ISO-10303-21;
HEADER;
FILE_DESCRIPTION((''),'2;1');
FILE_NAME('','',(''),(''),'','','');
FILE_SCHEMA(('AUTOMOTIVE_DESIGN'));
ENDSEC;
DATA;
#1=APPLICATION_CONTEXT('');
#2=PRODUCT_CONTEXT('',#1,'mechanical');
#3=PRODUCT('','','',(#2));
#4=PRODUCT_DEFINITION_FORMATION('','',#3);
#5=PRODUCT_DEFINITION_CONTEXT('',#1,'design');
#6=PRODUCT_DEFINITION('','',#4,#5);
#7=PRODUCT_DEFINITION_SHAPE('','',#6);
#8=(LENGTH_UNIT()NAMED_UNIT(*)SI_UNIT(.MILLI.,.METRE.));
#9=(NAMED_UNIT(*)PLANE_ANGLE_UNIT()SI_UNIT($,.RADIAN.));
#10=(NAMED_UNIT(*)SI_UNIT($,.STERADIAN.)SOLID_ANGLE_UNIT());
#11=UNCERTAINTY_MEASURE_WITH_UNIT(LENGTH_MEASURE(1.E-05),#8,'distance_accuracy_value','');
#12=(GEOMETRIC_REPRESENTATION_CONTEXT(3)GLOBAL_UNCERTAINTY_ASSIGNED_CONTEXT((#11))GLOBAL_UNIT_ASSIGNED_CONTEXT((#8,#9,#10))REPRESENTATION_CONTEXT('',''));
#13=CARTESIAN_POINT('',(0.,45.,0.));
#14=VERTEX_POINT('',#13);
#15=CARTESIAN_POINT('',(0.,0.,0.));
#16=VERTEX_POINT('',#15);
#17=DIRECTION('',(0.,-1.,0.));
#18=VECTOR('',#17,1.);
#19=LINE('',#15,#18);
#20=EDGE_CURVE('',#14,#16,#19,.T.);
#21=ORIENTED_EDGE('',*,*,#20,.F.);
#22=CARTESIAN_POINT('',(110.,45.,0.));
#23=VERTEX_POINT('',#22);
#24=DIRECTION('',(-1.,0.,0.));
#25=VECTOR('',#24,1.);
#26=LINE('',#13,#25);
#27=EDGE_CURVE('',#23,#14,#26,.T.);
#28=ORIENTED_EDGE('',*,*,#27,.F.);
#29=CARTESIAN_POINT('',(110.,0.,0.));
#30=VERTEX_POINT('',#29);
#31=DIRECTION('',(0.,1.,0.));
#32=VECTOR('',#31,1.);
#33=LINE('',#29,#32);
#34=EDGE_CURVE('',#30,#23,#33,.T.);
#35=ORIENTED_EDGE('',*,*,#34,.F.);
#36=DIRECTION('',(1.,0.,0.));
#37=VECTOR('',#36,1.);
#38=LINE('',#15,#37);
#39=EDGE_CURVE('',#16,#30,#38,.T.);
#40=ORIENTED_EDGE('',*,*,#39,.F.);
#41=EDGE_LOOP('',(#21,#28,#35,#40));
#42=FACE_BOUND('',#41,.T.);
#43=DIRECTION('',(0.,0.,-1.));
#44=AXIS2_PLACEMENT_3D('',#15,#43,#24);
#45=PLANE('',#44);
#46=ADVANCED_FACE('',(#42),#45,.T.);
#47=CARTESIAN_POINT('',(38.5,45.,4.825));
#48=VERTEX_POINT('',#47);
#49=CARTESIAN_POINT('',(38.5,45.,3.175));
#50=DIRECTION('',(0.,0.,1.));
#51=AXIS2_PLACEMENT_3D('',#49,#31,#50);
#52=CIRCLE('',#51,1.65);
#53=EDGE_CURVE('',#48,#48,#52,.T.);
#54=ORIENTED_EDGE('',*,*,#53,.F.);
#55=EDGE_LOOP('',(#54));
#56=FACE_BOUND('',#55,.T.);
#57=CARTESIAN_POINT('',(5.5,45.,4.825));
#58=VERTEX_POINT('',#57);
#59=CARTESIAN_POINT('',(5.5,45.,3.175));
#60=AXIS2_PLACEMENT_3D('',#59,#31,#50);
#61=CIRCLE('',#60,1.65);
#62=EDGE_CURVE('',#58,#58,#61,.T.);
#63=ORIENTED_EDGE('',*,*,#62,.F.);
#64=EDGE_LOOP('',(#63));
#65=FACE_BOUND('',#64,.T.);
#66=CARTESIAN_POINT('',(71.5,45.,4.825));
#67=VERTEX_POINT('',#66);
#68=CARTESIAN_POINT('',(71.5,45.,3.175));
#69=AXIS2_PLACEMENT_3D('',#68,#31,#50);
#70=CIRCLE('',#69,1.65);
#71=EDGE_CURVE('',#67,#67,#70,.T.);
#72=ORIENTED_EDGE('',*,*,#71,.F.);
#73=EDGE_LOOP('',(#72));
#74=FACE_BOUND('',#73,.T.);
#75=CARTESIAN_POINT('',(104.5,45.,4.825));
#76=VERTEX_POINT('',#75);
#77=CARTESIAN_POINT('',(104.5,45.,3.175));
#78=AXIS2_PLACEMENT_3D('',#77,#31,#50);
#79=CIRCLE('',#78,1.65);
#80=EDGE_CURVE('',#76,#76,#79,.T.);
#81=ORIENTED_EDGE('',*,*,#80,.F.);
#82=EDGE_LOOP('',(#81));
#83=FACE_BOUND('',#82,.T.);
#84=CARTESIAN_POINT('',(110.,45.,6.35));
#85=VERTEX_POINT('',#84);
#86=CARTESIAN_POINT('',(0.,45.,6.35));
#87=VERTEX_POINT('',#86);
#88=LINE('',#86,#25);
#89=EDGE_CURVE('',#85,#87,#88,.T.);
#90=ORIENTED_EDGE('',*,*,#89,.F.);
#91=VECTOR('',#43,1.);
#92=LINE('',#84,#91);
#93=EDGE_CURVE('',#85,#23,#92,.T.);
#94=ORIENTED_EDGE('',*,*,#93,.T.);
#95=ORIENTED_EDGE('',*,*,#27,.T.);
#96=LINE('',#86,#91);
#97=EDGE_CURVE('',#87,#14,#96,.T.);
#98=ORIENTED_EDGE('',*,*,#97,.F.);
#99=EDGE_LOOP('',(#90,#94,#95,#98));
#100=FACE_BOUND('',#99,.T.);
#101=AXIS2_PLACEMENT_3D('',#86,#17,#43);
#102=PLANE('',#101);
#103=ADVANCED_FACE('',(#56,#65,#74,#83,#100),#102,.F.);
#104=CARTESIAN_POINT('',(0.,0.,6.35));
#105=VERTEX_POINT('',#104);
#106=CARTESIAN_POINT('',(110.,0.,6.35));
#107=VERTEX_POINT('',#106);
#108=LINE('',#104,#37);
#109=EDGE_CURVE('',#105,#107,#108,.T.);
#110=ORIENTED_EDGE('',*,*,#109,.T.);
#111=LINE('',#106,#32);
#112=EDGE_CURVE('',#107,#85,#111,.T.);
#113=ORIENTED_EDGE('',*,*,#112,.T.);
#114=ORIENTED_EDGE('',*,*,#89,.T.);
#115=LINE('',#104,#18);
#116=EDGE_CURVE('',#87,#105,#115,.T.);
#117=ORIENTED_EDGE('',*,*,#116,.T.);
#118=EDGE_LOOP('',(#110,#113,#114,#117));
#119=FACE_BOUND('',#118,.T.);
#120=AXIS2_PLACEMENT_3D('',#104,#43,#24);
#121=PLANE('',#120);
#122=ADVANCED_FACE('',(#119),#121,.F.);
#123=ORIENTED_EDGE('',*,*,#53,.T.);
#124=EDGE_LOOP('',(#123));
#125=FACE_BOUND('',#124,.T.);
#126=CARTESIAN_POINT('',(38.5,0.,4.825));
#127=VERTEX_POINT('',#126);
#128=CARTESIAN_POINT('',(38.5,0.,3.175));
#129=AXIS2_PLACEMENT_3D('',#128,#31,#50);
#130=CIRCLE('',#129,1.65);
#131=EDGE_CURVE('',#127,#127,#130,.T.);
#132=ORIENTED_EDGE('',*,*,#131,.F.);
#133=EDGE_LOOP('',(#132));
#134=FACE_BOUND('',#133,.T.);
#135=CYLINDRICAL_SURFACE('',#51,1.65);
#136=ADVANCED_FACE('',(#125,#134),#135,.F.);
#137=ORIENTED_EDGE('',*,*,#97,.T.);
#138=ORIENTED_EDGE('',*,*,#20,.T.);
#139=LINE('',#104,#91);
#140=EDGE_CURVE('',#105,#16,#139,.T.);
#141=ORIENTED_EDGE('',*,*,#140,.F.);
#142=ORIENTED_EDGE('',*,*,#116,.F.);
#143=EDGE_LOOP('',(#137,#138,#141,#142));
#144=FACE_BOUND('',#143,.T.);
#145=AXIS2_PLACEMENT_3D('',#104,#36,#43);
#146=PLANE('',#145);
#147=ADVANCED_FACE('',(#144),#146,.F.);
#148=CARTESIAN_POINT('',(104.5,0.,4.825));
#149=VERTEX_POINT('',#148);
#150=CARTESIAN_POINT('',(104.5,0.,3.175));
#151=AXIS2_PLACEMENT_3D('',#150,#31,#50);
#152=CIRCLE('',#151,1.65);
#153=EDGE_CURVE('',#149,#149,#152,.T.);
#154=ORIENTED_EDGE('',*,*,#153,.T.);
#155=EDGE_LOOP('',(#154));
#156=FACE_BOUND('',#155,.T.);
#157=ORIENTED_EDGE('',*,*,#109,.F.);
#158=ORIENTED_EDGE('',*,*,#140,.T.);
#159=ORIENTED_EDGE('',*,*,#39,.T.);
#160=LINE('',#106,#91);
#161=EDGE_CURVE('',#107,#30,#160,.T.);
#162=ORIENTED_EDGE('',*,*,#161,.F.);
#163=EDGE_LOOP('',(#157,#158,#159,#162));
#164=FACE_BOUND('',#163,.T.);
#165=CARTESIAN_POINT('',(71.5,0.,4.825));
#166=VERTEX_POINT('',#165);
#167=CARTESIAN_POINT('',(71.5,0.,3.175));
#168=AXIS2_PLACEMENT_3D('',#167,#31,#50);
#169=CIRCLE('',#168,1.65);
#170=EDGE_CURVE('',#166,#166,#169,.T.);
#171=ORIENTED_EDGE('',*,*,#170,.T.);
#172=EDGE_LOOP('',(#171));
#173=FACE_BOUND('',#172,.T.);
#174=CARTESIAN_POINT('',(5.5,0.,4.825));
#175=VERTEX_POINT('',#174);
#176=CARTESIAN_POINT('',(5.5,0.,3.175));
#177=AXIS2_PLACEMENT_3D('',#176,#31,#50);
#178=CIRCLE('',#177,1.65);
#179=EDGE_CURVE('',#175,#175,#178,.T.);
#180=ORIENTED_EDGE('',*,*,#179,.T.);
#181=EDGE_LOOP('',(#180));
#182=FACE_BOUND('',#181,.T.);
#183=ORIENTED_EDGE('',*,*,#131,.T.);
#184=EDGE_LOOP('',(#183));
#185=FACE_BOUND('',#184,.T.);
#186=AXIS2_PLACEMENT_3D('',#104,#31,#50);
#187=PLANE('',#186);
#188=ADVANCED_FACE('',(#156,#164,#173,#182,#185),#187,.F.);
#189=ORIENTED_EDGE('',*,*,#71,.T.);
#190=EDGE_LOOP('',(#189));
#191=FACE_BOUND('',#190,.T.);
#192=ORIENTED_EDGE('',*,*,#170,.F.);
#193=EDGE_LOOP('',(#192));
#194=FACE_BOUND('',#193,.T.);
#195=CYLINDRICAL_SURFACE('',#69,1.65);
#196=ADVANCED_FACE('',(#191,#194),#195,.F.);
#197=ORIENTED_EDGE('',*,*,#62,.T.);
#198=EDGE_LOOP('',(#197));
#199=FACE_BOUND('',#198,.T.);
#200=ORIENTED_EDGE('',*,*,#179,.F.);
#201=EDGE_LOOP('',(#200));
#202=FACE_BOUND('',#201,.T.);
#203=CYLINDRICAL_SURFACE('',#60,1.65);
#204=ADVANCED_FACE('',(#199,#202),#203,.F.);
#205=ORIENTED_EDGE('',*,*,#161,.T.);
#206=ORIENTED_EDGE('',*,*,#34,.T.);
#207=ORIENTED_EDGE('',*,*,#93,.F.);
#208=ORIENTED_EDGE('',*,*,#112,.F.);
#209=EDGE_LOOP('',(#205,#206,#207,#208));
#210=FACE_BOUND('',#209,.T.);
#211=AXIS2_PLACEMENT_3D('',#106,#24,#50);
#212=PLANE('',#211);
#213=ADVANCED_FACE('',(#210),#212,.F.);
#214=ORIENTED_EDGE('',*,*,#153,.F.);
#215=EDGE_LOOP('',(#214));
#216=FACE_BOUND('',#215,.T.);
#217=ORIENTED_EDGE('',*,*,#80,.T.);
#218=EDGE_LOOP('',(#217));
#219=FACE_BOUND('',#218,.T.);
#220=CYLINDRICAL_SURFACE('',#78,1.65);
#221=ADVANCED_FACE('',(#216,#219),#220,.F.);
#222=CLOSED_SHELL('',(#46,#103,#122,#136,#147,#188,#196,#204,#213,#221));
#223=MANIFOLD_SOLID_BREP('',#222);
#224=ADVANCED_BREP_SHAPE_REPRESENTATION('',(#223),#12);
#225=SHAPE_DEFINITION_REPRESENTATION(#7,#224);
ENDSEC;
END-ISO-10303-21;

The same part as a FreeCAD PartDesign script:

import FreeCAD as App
import Part
import Sketcher

V = App.Vector
Q = App.Units.Quantity

doc = App.newDocument("Part")
body = doc.addObject("PartDesign::Body", "Body")

sketch1 = doc.addObject("Sketcher::SketchObject", "Sketch")
body.addObject(sketch1)
sketch1.AttachmentSupport = (doc.XY_Plane, [""])
sketch1.MapMode = "FlatFace"
sketch1.addGeometry([
    Part.LineSegment(V(0, 45, 0), V(0, 0, 0)),
    Part.LineSegment(V(0, 0, 0), V(110, 0, 0)),
    Part.LineSegment(V(110, 0, 0), V(110, 45, 0)),
    Part.LineSegment(V(110, 45, 0), V(0, 45, 0)),
], False)
sketch1.addConstraint([
    Sketcher.Constraint("Coincident", 0, 2, 1, 1),
    Sketcher.Constraint("Coincident", 1, 2, 2, 1),
    Sketcher.Constraint("Coincident", 2, 2, 3, 1),
    Sketcher.Constraint("Coincident", 3, 2, 0, 1),
    Sketcher.Constraint("Vertical", 0),
    Sketcher.Constraint("Horizontal", 1),
    Sketcher.Constraint("Vertical", 2),
    Sketcher.Constraint("Horizontal", 3),
    Sketcher.Constraint("Coincident", 0, 2, -1, 1),
    Sketcher.Constraint("DistanceX", 1, 1, 1, 2, Q("110 mm")),
    Sketcher.Constraint("DistanceY", 0, 2, 0, 1, Q("45 mm")),
])
pad1 = doc.addObject("PartDesign::Pad", "Pad")
body.addObject(pad1)
pad1.Profile = sketch1
pad1.Length = 6.35

sketch2 = doc.addObject("Sketcher::SketchObject", "Sketch001")
body.addObject(sketch2)
sketch2.AttachmentSupport = (doc.XZ_Plane, [""])
sketch2.MapMode = "FlatFace"
sketch2.AttachmentOffset = App.Placement(V(0, 0, -45), App.Rotation())
sketch2.addGeometry([
    Part.Circle(V(5.5, 3.2, 0), V(0, 0, 1), 1.6),
    Part.Circle(V(38.5, 3.2, 0), V(0, 0, 1), 1.6),
    Part.Circle(V(71.5, 3.2, 0), V(0, 0, 1), 1.6),
    Part.Circle(V(104.5, 3.2, 0), V(0, 0, 1), 1.6),
], False)
sketch2.addConstraint([
    Sketcher.Constraint("Equal", 0, 1),
    Sketcher.Constraint("Equal", 1, 2),
    Sketcher.Constraint("Equal", 2, 3),
    Sketcher.Constraint("Horizontal", 0, 3, 1, 3),
    Sketcher.Constraint("Horizontal", 1, 3, 2, 3),
    Sketcher.Constraint("Horizontal", 2, 3, 3, 3),
    Sketcher.Constraint("Diameter", 0, Q("3.3 mm")),
    Sketcher.Constraint("DistanceX", 0, 3, 1, 3, Q("33 mm")),
    Sketcher.Constraint("DistanceX", 1, 3, 2, 3, Q("33 mm")),
    Sketcher.Constraint("DistanceX", 2, 3, 3, 3, Q("33 mm")),
    Sketcher.Constraint("DistanceX", -1, 1, 0, 3, Q("5.5 mm")),
    Sketcher.Constraint("DistanceY", -1, 1, 0, 3, Q("3.175 mm")),
])
doc.recompute()
hole = doc.addObject("PartDesign::Hole", "Hole")
body.addObject(hole)
hole.Profile = sketch2
hole.ThreadType = "None"
hole.Diameter = 3.3
hole.DepthType = "ThroughAll"
hole.Reversed = True

doc.recompute()
